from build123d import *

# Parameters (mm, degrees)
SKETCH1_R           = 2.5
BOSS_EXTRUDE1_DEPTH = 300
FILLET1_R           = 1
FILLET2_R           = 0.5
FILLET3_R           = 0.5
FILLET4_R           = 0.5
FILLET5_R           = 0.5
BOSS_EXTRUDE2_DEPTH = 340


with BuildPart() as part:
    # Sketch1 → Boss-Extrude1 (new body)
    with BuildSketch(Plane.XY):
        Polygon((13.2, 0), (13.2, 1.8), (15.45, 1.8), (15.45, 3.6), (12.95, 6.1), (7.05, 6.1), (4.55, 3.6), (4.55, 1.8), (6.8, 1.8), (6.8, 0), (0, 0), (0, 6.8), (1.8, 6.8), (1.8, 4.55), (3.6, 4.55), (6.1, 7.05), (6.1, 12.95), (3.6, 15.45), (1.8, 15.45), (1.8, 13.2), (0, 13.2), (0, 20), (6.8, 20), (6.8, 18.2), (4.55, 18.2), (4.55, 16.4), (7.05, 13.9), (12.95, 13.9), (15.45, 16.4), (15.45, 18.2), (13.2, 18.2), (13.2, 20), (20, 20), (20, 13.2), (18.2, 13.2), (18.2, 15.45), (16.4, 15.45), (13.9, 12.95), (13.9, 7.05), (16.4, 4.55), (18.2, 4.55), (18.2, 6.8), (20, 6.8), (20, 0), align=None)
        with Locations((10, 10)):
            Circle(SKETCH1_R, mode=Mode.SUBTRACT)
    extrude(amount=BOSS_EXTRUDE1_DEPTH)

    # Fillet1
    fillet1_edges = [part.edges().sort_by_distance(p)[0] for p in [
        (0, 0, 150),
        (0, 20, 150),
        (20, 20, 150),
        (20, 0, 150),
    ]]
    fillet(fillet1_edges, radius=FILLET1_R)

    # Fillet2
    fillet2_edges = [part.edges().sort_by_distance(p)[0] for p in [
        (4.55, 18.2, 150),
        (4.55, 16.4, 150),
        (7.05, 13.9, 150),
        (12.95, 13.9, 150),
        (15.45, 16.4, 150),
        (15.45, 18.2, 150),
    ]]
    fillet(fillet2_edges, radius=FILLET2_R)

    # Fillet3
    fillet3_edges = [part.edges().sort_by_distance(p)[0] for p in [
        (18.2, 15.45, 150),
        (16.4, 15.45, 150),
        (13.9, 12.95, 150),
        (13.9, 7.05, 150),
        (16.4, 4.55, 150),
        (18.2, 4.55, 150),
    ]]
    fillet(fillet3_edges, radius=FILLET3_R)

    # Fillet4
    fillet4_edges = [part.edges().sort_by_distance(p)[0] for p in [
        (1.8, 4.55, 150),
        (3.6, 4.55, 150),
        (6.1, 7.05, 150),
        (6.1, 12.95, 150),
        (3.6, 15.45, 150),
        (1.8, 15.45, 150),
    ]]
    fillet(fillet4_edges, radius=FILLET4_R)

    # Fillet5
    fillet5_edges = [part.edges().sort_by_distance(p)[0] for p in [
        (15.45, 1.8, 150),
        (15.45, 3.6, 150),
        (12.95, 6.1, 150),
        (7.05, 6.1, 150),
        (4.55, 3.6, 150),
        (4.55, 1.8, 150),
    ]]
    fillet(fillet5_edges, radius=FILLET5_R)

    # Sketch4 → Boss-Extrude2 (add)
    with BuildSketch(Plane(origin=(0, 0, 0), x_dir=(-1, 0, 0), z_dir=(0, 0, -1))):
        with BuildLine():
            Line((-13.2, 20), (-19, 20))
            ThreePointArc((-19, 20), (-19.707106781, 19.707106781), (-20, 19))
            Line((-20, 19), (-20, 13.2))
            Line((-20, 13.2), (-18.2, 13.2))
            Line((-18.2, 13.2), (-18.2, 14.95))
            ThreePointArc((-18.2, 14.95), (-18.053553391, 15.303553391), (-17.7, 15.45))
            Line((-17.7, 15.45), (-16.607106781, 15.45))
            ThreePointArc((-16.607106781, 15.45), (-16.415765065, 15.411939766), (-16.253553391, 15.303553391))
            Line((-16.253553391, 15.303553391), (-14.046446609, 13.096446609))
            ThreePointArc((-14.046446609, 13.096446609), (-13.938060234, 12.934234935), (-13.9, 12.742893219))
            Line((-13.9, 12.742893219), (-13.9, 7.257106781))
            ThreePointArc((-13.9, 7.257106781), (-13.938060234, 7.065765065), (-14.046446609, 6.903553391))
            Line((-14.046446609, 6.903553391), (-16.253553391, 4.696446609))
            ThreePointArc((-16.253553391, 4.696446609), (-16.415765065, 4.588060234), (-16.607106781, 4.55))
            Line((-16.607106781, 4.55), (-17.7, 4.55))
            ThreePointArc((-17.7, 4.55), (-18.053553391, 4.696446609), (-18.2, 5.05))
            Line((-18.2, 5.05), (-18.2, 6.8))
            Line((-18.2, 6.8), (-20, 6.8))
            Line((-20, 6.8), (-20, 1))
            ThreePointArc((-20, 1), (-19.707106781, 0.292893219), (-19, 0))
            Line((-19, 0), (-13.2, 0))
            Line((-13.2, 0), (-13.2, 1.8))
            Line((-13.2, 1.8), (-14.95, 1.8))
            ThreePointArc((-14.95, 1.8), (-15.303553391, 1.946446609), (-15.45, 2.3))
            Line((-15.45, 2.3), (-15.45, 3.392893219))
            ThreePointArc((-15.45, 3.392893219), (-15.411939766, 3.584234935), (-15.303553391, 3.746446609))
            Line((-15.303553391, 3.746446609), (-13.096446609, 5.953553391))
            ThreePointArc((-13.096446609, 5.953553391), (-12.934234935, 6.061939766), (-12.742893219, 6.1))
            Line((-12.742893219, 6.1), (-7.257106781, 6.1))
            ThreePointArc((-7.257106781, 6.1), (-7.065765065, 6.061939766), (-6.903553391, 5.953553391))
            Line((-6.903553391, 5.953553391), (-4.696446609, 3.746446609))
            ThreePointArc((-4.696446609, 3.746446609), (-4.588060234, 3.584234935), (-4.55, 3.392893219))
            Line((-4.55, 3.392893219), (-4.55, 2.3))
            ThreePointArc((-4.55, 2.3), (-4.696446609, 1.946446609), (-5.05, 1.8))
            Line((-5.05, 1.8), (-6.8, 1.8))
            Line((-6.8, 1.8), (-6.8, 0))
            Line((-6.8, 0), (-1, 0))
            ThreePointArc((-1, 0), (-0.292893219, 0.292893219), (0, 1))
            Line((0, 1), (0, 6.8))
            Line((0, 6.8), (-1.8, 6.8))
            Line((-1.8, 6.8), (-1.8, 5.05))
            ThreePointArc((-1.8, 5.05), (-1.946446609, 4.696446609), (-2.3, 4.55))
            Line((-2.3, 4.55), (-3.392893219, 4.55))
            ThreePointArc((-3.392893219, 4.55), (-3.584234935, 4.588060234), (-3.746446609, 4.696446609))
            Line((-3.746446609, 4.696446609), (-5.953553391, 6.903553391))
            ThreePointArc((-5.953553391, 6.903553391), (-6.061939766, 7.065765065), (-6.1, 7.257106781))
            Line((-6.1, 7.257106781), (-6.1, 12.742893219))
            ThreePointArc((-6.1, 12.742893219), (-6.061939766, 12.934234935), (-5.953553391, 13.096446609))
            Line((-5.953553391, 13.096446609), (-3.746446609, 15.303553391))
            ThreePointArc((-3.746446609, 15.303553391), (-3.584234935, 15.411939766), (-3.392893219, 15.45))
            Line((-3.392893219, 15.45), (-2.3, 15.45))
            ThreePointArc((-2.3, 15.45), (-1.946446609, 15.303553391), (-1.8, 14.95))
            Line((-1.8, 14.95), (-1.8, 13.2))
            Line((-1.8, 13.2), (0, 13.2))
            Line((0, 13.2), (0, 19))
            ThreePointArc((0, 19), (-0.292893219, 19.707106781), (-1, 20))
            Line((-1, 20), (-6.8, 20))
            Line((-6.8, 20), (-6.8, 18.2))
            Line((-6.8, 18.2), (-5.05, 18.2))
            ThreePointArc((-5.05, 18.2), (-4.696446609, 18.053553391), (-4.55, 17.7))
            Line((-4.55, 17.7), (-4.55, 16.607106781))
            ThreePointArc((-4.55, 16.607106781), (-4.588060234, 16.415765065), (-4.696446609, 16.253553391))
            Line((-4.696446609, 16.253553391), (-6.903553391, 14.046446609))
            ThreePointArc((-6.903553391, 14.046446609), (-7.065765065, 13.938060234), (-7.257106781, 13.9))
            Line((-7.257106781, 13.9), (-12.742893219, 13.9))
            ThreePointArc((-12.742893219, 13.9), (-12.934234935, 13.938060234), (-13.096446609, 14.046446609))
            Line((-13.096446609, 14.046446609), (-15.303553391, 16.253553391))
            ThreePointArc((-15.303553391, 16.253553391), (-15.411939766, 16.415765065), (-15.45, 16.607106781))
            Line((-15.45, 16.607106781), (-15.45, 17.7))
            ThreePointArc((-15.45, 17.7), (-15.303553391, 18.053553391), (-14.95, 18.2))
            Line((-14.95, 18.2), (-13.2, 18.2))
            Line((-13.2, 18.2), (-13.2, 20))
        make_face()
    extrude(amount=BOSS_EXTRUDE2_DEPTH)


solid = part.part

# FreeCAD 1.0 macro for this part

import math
import FreeCAD as App
import Part
import Sketcher


def edges_at(feature, points):
    """Names of the edges that pass closest to the given points."""
    edges = feature.Shape.Edges
    near = lambda p: min(range(len(edges)), key=lambda i: edges[i].distToShape(Part.Vertex(*p))[0])
    return sorted({f"Edge{near(p) + 1}" for p in points})

doc = App.newDocument("Part")
body = doc.addObject("PartDesign::Body", "Body")

# Sketch on XY plane
sketch1 = body.newObject("Sketcher::SketchObject", "Sketch")
sketch1.AttachmentSupport = (doc.getObject("XY_Plane"), [""])
sketch1.MapMode = "FlatFace"
sketch1.addGeometry(Part.LineSegment(App.Vector(13.2, 1.8, 0), App.Vector(13.2, 0, 0)), False)
sketch1.addGeometry(Part.LineSegment(App.Vector(13.2, 0, 0), App.Vector(20, 0, 0)), False)
sketch1.addGeometry(Part.LineSegment(App.Vector(20, 0, 0), App.Vector(20, 6.8, 0)), False)
sketch1.addGeometry(Part.LineSegment(App.Vector(20, 6.8, 0), App.Vector(18.2, 6.8, 0)), False)
sketch1.addGeometry(Part.LineSegment(App.Vector(18.2, 6.8, 0), App.Vector(18.2, 4.5, 0)), False)
sketch1.addGeometry(Part.LineSegment(App.Vector(18.2, 4.5, 0), App.Vector(16.4, 4.5, 0)), False)
sketch1.addGeometry(Part.LineSegment(App.Vector(16.4, 4.5, 0), App.Vector(13.9, 7, 0)), False)
sketch1.addGeometry(Part.LineSegment(App.Vector(13.9, 7, 0), App.Vector(13.9, 12.9, 0)), False)
sketch1.addGeometry(Part.LineSegment(App.Vector(13.9, 12.9, 0), App.Vector(16.4, 15.4, 0)), False)
sketch1.addGeometry(Part.LineSegment(App.Vector(16.4, 15.4, 0), App.Vector(18.2, 15.4, 0)), False)
sketch1.addGeometry(Part.LineSegment(App.Vector(18.2, 15.4, 0), App.Vector(18.2, 13.2, 0)), False)
sketch1.addGeometry(Part.LineSegment(App.Vector(18.2, 13.2, 0), App.Vector(20, 13.2, 0)), False)
sketch1.addGeometry(Part.LineSegment(App.Vector(20, 13.2, 0), App.Vector(20, 20, 0)), False)
sketch1.addGeometry(Part.LineSegment(App.Vector(20, 20, 0), App.Vector(13.2, 20, 0)), False)
sketch1.addGeometry(Part.LineSegment(App.Vector(13.2, 20, 0), App.Vector(13.2, 18.2, 0)), False)
sketch1.addGeometry(Part.LineSegment(App.Vector(13.2, 18.2, 0), App.Vector(15.4, 18.2, 0)), False)
sketch1.addGeometry(Part.LineSegment(App.Vector(15.4, 18.2, 0), App.Vector(15.4, 16.4, 0)), False)
sketch1.addGeometry(Part.LineSegment(App.Vector(15.4, 16.4, 0), App.Vector(12.9, 13.9, 0)), False)
sketch1.addGeometry(Part.LineSegment(App.Vector(12.9, 13.9, 0), App.Vector(7, 13.9, 0)), False)
sketch1.addGeometry(Part.LineSegment(App.Vector(7, 13.9, 0), App.Vector(4.5, 16.4, 0)), False)
sketch1.addGeometry(Part.LineSegment(App.Vector(4.5, 16.4, 0), App.Vector(4.5, 18.2, 0)), False)
sketch1.addGeometry(Part.LineSegment(App.Vector(4.5, 18.2, 0), App.Vector(6.8, 18.2, 0)), False)
sketch1.addGeometry(Part.LineSegment(App.Vector(6.8, 18.2, 0), App.Vector(6.8, 20, 0)), False)
sketch1.addGeometry(Part.LineSegment(App.Vector(6.8, 20, 0), App.Vector(0, 20, 0)), False)
sketch1.addGeometry(Part.LineSegment(App.Vector(0, 20, 0), App.Vector(0, 13.2, 0)), False)
sketch1.addGeometry(Part.LineSegment(App.Vector(0, 13.2, 0), App.Vector(1.8, 13.2, 0)), False)
sketch1.addGeometry(Part.LineSegment(App.Vector(1.8, 13.2, 0), App.Vector(1.8, 15.4, 0)), False)
sketch1.addGeometry(Part.LineSegment(App.Vector(1.8, 15.4, 0), App.Vector(3.6, 15.4, 0)), False)
sketch1.addGeometry(Part.LineSegment(App.Vector(3.6, 15.4, 0), App.Vector(6.1, 12.9, 0)), False)
sketch1.addGeometry(Part.LineSegment(App.Vector(6.1, 12.9, 0), App.Vector(6.1, 7, 0)), False)
sketch1.addGeometry(Part.LineSegment(App.Vector(6.1, 7, 0), App.Vector(3.6, 4.5, 0)), False)
sketch1.addGeometry(Part.LineSegment(App.Vector(3.6, 4.5, 0), App.Vector(1.8, 4.5, 0)), False)
sketch1.addGeometry(Part.LineSegment(App.Vector(1.8, 4.5, 0), App.Vector(1.8, 6.8, 0)), False)
sketch1.addGeometry(Part.LineSegment(App.Vector(1.8, 6.8, 0), App.Vector(0, 6.8, 0)), False)
sketch1.addGeometry(Part.LineSegment(App.Vector(0, 6.8, 0), App.Vector(0, 0, 0)), False)
sketch1.addGeometry(Part.LineSegment(App.Vector(0, 0, 0), App.Vector(6.8, 0, 0)), False)
sketch1.addGeometry(Part.LineSegment(App.Vector(6.8, 0, 0), App.Vector(6.8, 1.8, 0)), False)
sketch1.addGeometry(Part.LineSegment(App.Vector(6.8, 1.8, 0), App.Vector(4.5, 1.8, 0)), False)
sketch1.addGeometry(Part.LineSegment(App.Vector(4.5, 1.8, 0), App.Vector(4.5, 3.6, 0)), False)
sketch1.addGeometry(Part.LineSegment(App.Vector(4.5, 3.6, 0), App.Vector(7, 6.1, 0)), False)
sketch1.addGeometry(Part.LineSegment(App.Vector(7, 6.1, 0), App.Vector(12.9, 6.1, 0)), False)
sketch1.addGeometry(Part.LineSegment(App.Vector(12.9, 6.1, 0), App.Vector(15.4, 3.6, 0)), False)
sketch1.addGeometry(Part.LineSegment(App.Vector(15.4, 3.6, 0), App.Vector(15.4, 1.8, 0)), False)
sketch1.addGeometry(Part.LineSegment(App.Vector(15.4, 1.8, 0), App.Vector(13.2, 1.8, 0)), False)
sketch1.addGeometry(Part.Circle(App.Vector(10, 10, 0), App.Vector(0, 0, 1), 2.5), False)
sketch1.addConstraint(Sketcher.Constraint("Coincident", 0, 2, 1, 1))
sketch1.addConstraint(Sketcher.Constraint("Coincident", 1, 2, 2, 1))
sketch1.addConstraint(Sketcher.Constraint("Coincident", 2, 2, 3, 1))
sketch1.addConstraint(Sketcher.Constraint("Coincident", 3, 2, 4, 1))
sketch1.addConstraint(Sketcher.Constraint("Coincident", 4, 2, 5, 1))
sketch1.addConstraint(Sketcher.Constraint("Coincident", 5, 2, 6, 1))
sketch1.addConstraint(Sketcher.Constraint("Coincident", 6, 2, 7, 1))
sketch1.addConstraint(Sketcher.Constraint("Coincident", 7, 2, 8, 1))
sketch1.addConstraint(Sketcher.Constraint("Coincident", 8, 2, 9, 1))
sketch1.addConstraint(Sketcher.Constraint("Coincident", 9, 2, 10, 1))
sketch1.addConstraint(Sketcher.Constraint("Coincident", 10, 2, 11, 1))
sketch1.addConstraint(Sketcher.Constraint("Coincident", 11, 2, 12, 1))
sketch1.addConstraint(Sketcher.Constraint("Coincident", 12, 2, 13, 1))
sketch1.addConstraint(Sketcher.Constraint("Coincident", 13, 2, 14, 1))
sketch1.addConstraint(Sketcher.Constraint("Coincident", 14, 2, 15, 1))
sketch1.addConstraint(Sketcher.Constraint("Coincident", 15, 2, 16, 1))
sketch1.addConstraint(Sketcher.Constraint("Coincident", 16, 2, 17, 1))
sketch1.addConstraint(Sketcher.Constraint("Coincident", 17, 2, 18, 1))
sketch1.addConstraint(Sketcher.Constraint("Coincident", 18, 2, 19, 1))
sketch1.addConstraint(Sketcher.Constraint("Coincident", 19, 2, 20, 1))
sketch1.addConstraint(Sketcher.Constraint("Coincident", 20, 2, 21, 1))
sketch1.addConstraint(Sketcher.Constraint("Coincident", 21, 2, 22, 1))
sketch1.addConstraint(Sketcher.Constraint("Coincident", 22, 2, 23, 1))
sketch1.addConstraint(Sketcher.Constraint("Coincident", 23, 2, 24, 1))
sketch1.addConstraint(Sketcher.Constraint("Coincident", 24, 2, 25, 1))
sketch1.addConstraint(Sketcher.Constraint("Coincident", 25, 2, 26, 1))
sketch1.addConstraint(Sketcher.Constraint("Coincident", 26, 2, 27, 1))
sketch1.addConstraint(Sketcher.Constraint("Coincident", 27, 2, 28, 1))
sketch1.addConstraint(Sketcher.Constraint("Coincident", 28, 2, 29, 1))
sketch1.addConstraint(Sketcher.Constraint("Coincident", 29, 2, 30, 1))
sketch1.addConstraint(Sketcher.Constraint("Coincident", 30, 2, 31, 1))
sketch1.addConstraint(Sketcher.Constraint("Coincident", 31, 2, 32, 1))
sketch1.addConstraint(Sketcher.Constraint("Coincident", 32, 2, 33, 1))
sketch1.addConstraint(Sketcher.Constraint("Coincident", 33, 2, 34, 1))
sketch1.addConstraint(Sketcher.Constraint("Coincident", 34, 2, 35, 1))
sketch1.addConstraint(Sketcher.Constraint("Coincident", 35, 2, 36, 1))
sketch1.addConstraint(Sketcher.Constraint("Coincident", 36, 2, 37, 1))
sketch1.addConstraint(Sketcher.Constraint("Coincident", 37, 2, 38, 1))
sketch1.addConstraint(Sketcher.Constraint("Coincident", 38, 2, 39, 1))
sketch1.addConstraint(Sketcher.Constraint("Coincident", 39, 2, 40, 1))
sketch1.addConstraint(Sketcher.Constraint("Coincident", 40, 2, 41, 1))
sketch1.addConstraint(Sketcher.Constraint("Coincident", 41, 2, 42, 1))
sketch1.addConstraint(Sketcher.Constraint("Coincident", 42, 2, 43, 1))
sketch1.addConstraint(Sketcher.Constraint("Coincident", 43, 2, 0, 1))
sketch1.addConstraint(Sketcher.Constraint("Vertical", 0))
sketch1.addConstraint(Sketcher.Constraint("Horizontal", 1))
sketch1.addConstraint(Sketcher.Constraint("Vertical", 2))
sketch1.addConstraint(Sketcher.Constraint("Horizontal", 3))
sketch1.addConstraint(Sketcher.Constraint("Vertical", 4))
sketch1.addConstraint(Sketcher.Constraint("Horizontal", 5))
sketch1.addConstraint(Sketcher.Constraint("Vertical", 7))
sketch1.addConstraint(Sketcher.Constraint("Horizontal", 9))
sketch1.addConstraint(Sketcher.Constraint("Vertical", 10))
sketch1.addConstraint(Sketcher.Constraint("Horizontal", 11))
sketch1.addConstraint(Sketcher.Constraint("Vertical", 12))
sketch1.addConstraint(Sketcher.Constraint("Horizontal", 13))
sketch1.addConstraint(Sketcher.Constraint("Vertical", 14))
sketch1.addConstraint(Sketcher.Constraint("Horizontal", 15))
sketch1.addConstraint(Sketcher.Constraint("Vertical", 16))
sketch1.addConstraint(Sketcher.Constraint("Horizontal", 18))
sketch1.addConstraint(Sketcher.Constraint("Vertical", 20))
sketch1.addConstraint(Sketcher.Constraint("Horizontal", 21))
sketch1.addConstraint(Sketcher.Constraint("Vertical", 22))
sketch1.addConstraint(Sketcher.Constraint("Horizontal", 23))
sketch1.addConstraint(Sketcher.Constraint("Vertical", 24))
sketch1.addConstraint(Sketcher.Constraint("Horizontal", 25))
sketch1.addConstraint(Sketcher.Constraint("Vertical", 26))
sketch1.addConstraint(Sketcher.Constraint("Horizontal", 27))
sketch1.addConstraint(Sketcher.Constraint("Vertical", 29))
sketch1.addConstraint(Sketcher.Constraint("Horizontal", 31))
sketch1.addConstraint(Sketcher.Constraint("Vertical", 32))
sketch1.addConstraint(Sketcher.Constraint("Horizontal", 33))
sketch1.addConstraint(Sketcher.Constraint("Vertical", 34))
sketch1.addConstraint(Sketcher.Constraint("Horizontal", 35))
sketch1.addConstraint(Sketcher.Constraint("Vertical", 36))
sketch1.addConstraint(Sketcher.Constraint("Horizontal", 37))
sketch1.addConstraint(Sketcher.Constraint("Vertical", 38))
sketch1.addConstraint(Sketcher.Constraint("Horizontal", 40))
sketch1.addConstraint(Sketcher.Constraint("Vertical", 42))
sketch1.addConstraint(Sketcher.Constraint("Horizontal", 43))
sketch1.addConstraint(Sketcher.Constraint("Coincident", 34, 2, -1, 1))
sketch1.addConstraint(Sketcher.Constraint("PointOnObject", 0, 2, -1))
sketch1.addConstraint(Sketcher.Constraint("PointOnObject", 23, 2, -2))
sketch1.addConstraint(Sketcher.Constraint("Perpendicular", 6, 8))
sketch1.addConstraint(Sketcher.Constraint("Parallel", 8, 17))
sketch1.addConstraint(Sketcher.Constraint("Perpendicular", 17, 19))
sketch1.addConstraint(Sketcher.Constraint("Parallel", 19, 28))
sketch1.addConstraint(Sketcher.Constraint("Perpendicular", 28, 30))
sketch1.addConstraint(Sketcher.Constraint("Parallel", 30, 39))
sketch1.addConstraint(Sketcher.Constraint("Perpendicular", 39, 41))
sketch1.addConstraint(Sketcher.Constraint("Horizontal", 16, 2, 19, 2))
sketch1.addConstraint(Sketcher.Constraint("Horizontal", 15, 2, 20, 2))
sketch1.addConstraint(Sketcher.Constraint("Horizontal", 13, 2, 22, 2))
sketch1.addConstraint(Sketcher.Constraint("Horizontal", 11, 2, 24, 2))
sketch1.addConstraint(Sketcher.Constraint("Horizontal", 9, 2, 26, 2))
sketch1.addConstraint(Sketcher.Constraint("Horizontal", 7, 2, 28, 2))
sketch1.addConstraint(Sketcher.Constraint("Horizontal", 6, 2, 29, 2))
sketch1.addConstraint(Sketcher.Constraint("Horizontal", 5, 2, 30, 2))
sketch1.addConstraint(Sketcher.Constraint("Horizontal", 3, 2, 32, 2))
sketch1.addConstraint(Sketcher.Constraint("Horizontal", 38, 2, 41, 2))
sketch1.addConstraint(Sketcher.Constraint("Horizontal", 37, 2, 42, 2))
sketch1.addConstraint(Sketcher.Constraint("Vertical", 5, 2, 8, 2))
sketch1.addConstraint(Sketcher.Constraint("Vertical", 4, 2, 9, 2))
sketch1.addConstraint(Sketcher.Constraint("Vertical", 2, 2, 11, 2))
sketch1.addConstraint(Sketcher.Constraint("Vertical", 0, 2, 13, 2))
sketch1.addConstraint(Sketcher.Constraint("Vertical", 27, 2, 30, 2))
sketch1.addConstraint(Sketcher.Constraint("Vertical", 26, 2, 31, 2))
sketch1.addConstraint(Sketcher.Constraint("Vertical", 22, 2, 35, 2))
sketch1.addConstraint(Sketcher.Constraint("Vertical", 20, 2, 37, 2))
sketch1.addConstraint(Sketcher.Constraint("Vertical", 18, 2, 39, 2))
sketch1.addConstraint(Sketcher.Constraint("Vertical", 17, 2, 40, 2))
sketch1.addConstraint(Sketcher.Constraint("Equal", 3, 5))
sketch1.addConstraint(Sketcher.Constraint("Equal", 15, 21))
sketch1.addConstraint(Sketcher.Constraint("Equal", 13, 23))
sketch1.addConstraint(Sketcher.Constraint("Equal", 11, 25))
sketch1.addConstraint(Sketcher.Constraint("Equal", 25, 27))
sketch1.addConstraint(Sketcher.Constraint("Equal", 33, 0))
sketch1.addConstraint(Sketcher.Constraint("Equal", 35, 2))
sketch1.addConstraint(Sketcher.Constraint("Equal", 43, 4))
sketch1.addConstraint(Sketcher.Constraint("Equal", 40, 7))
sketch1.addConstraint(Sketcher.Constraint("Equal", 4, 10))
sketch1.addConstraint(Sketcher.Constraint("Equal", 2, 12))
sketch1.addConstraint(Sketcher.Constraint("Equal", 0, 14))
sketch1.addConstraint(Sketcher.Constraint("Equal", 14, 16))
sketch1.addConstraint(Sketcher.Constraint("Equal", 36, 38))
sketch1.addConstraint(Sketcher.Constraint("Equal", 8, 17))
sketch1.addConstraint(Sketcher.Constraint("Diameter", 44, 5.0))
sketch1.addConstraint(Sketcher.Constraint("DistanceX", 1, 1, 1, 2, 6.8))
sketch1.addConstraint(Sketcher.Constraint("DistanceX", 3, 2, 3, 1, 1.8))
sketch1.addConstraint(Sketcher.Constraint("DistanceX", 18, 2, 18, 1, 5.9))
sketch1.addConstraint(Sketcher.Constraint("DistanceX", -1, 1, 44, 3, 10.0))
sketch1.addConstraint(Sketcher.Constraint("DistanceY", -1, 1, 44, 3, 10.0))
sketch1.addConstraint(Sketcher.Constraint("DistanceX", -1, 1, 1, 2, 20.0))
sketch1.addConstraint(Sketcher.Constraint("DistanceX", 15, 1, 15, 2, 2.25))
pad1 = body.newObject("PartDesign::Pad", "Pad")
pad1.Profile = sketch1
pad1.Length = 300
doc.recompute()

fillet = body.newObject("PartDesign::Fillet", "Fillet")
fillet.Base = (pad1, edges_at(pad1, [
    (0, 0, 150),
    (0, 20, 150),
    (20, 20, 150),
    (20, 0, 150),
]))
fillet.Radius = 1
doc.recompute()

fillet2 = body.newObject("PartDesign::Fillet", "Fillet001")
fillet2.Base = (fillet, edges_at(fillet, [
    (4.55, 18.2, 150),
    (4.55, 16.4, 150),
    (7.05, 13.9, 150),
    (12.95, 13.9, 150),
    (15.45, 16.4, 150),
    (15.45, 18.2, 150),
]))
fillet2.Radius = 0.5
doc.recompute()

fillet3 = body.newObject("PartDesign::Fillet", "Fillet002")
fillet3.Base = (fillet2, edges_at(fillet2, [
    (18.2, 15.45, 150),
    (16.4, 15.45, 150),
    (13.9, 12.95, 150),
    (13.9, 7.05, 150),
    (16.4, 4.55, 150),
    (18.2, 4.55, 150),
]))
fillet3.Radius = 0.5
doc.recompute()

fillet4 = body.newObject("PartDesign::Fillet", "Fillet003")
fillet4.Base = (fillet3, edges_at(fillet3, [
    (1.8, 4.55, 150),
    (3.6, 4.55, 150),
    (6.1, 7.05, 150),
    (6.1, 12.95, 150),
    (3.6, 15.45, 150),
    (1.8, 15.45, 150),
]))
fillet4.Radius = 0.5
doc.recompute()

fillet5 = body.newObject("PartDesign::Fillet", "Fillet004")
fillet5.Base = (fillet4, edges_at(fillet4, [
    (15.45, 1.8, 150),
    (15.45, 3.6, 150),
    (12.95, 6.1, 150),
    (7.05, 6.1, 150),
    (4.55, 3.6, 150),
    (4.55, 1.8, 150),
]))
fillet5.Radius = 0.5

# Sketch on XY plane
sketch2 = body.newObject("Sketcher::SketchObject", "Sketch001")
sketch2.AttachmentSupport = (doc.getObject("XY_Plane"), [""])
sketch2.MapMode = "FlatFace"
sketch2.addGeometry(Part.LineSegment(App.Vector(13.2, 20, 0), App.Vector(19, 20, 0)), False)
sketch2.addGeometry(Part.ArcOfCircle(Part.Circle(App.Vector(19, 19, 0), App.Vector(0, 0, 1), 1), math.radians(0), math.radians(90)), False)
sketch2.addGeometry(Part.LineSegment(App.Vector(20, 19, 0), App.Vector(20, 13.2, 0)), False)
sketch2.addGeometry(Part.LineSegment(App.Vector(20, 13.2, 0), App.Vector(18.2, 13.2, 0)), False)
sketch2.addGeometry(Part.LineSegment(App.Vector(18.2, 13.2, 0), App.Vector(18.2, 14.95, 0)), False)
sketch2.addGeometry(Part.ArcOfCircle(Part.Circle(App.Vector(17.7, 14.95, 0), App.Vector(0, 0, 1), 0.5), math.radians(0), math.radians(90)), False)
sketch2.addGeometry(Part.LineSegment(App.Vector(17.7, 15.45, 0), App.Vector(16.61, 15.45, 0)), False)
sketch2.addGeometry(Part.ArcOfCircle(Part.Circle(App.Vector(16.61, 14.95, 0), App.Vector(0, 0, 1), 0.5), math.radians(90), math.radians(135)), False)
sketch2.addGeometry(Part.LineSegment(App.Vector(16.25, 15.3, 0), App.Vector(14.05, 13.1, 0)), False)
sketch2.addGeometry(Part.ArcOfCircle(Part.Circle(App.Vector(14.4, 12.74, 0), App.Vector(0, 0, 1), 0.5), math.radians(135), math.radians(180)), False)
sketch2.addGeometry(Part.LineSegment(App.Vector(13.9, 12.74, 0), App.Vector(13.9, 7.26, 0)), False)
sketch2.addGeometry(Part.ArcOfCircle(Part.Circle(App.Vector(14.4, 7.26, 0), App.Vector(0, 0, 1), 0.5), math.radians(-180), math.radians(-135)), False)
sketch2.addGeometry(Part.LineSegment(App.Vector(14.05, 6.9, 0), App.Vector(16.25, 4.7, 0)), False)
sketch2.addGeometry(Part.ArcOfCircle(Part.Circle(App.Vector(16.61, 5.05, 0), App.Vector(0, 0, 1), 0.5), math.radians(-135), math.radians(-90)), False)
sketch2.addGeometry(Part.LineSegment(App.Vector(16.61, 4.55, 0), App.Vector(17.7, 4.55, 0)), False)
sketch2.addGeometry(Part.ArcOfCircle(Part.Circle(App.Vector(17.7, 5.05, 0), App.Vector(0, 0, 1), 0.5), math.radians(-90), math.radians(0)), False)
sketch2.addGeometry(Part.LineSegment(App.Vector(18.2, 5.05, 0), App.Vector(18.2, 6.8, 0)), False)
sketch2.addGeometry(Part.LineSegment(App.Vector(18.2, 6.8, 0), App.Vector(20, 6.8, 0)), False)
sketch2.addGeometry(Part.LineSegment(App.Vector(20, 6.8, 0), App.Vector(20, 1, 0)), False)
sketch2.addGeometry(Part.ArcOfCircle(Part.Circle(App.Vector(19, 1, 0), App.Vector(0, 0, 1), 1), math.radians(-90), math.radians(0)), False)
sketch2.addGeometry(Part.LineSegment(App.Vector(19, 0, 0), App.Vector(13.2, 0, 0)), False)
sketch2.addGeometry(Part.LineSegment(App.Vector(13.2, 0, 0), App.Vector(13.2, 1.8, 0)), False)
sketch2.addGeometry(Part.LineSegment(App.Vector(13.2, 1.8, 0), App.Vector(14.95, 1.8, 0)), False)
sketch2.addGeometry(Part.ArcOfCircle(Part.Circle(App.Vector(14.95, 2.3, 0), App.Vector(0, 0, 1), 0.5), math.radians(-90), math.radians(0)), False)
sketch2.addGeometry(Part.LineSegment(App.Vector(15.45, 2.3, 0), App.Vector(15.45, 3.39, 0)), False)
sketch2.addGeometry(Part.ArcOfCircle(Part.Circle(App.Vector(14.95, 3.39, 0), App.Vector(0, 0, 1), 0.5), math.radians(0), math.radians(45)), False)
sketch2.addGeometry(Part.LineSegment(App.Vector(15.3, 3.75, 0), App.Vector(13.1, 5.95, 0)), False)
sketch2.addGeometry(Part.ArcOfCircle(Part.Circle(App.Vector(12.74, 5.6, 0), App.Vector(0, 0, 1), 0.5), math.radians(45), math.radians(90)), False)
sketch2.addGeometry(Part.LineSegment(App.Vector(12.74, 6.1, 0), App.Vector(7.26, 6.1, 0)), False)
sketch2.addGeometry(Part.ArcOfCircle(Part.Circle(App.Vector(7.26, 5.6, 0), App.Vector(0, 0, 1), 0.5), math.radians(90), math.radians(135)), False)
sketch2.addGeometry(Part.LineSegment(App.Vector(6.9, 5.95, 0), App.Vector(4.7, 3.75, 0)), False)
sketch2.addGeometry(Part.ArcOfCircle(Part.Circle(App.Vector(5.05, 3.39, 0), App.Vector(0, 0, 1), 0.5), math.radians(135), math.radians(180)), False)
sketch2.addGeometry(Part.LineSegment(App.Vector(4.55, 3.39, 0), App.Vector(4.55, 2.3, 0)), False)
sketch2.addGeometry(Part.ArcOfCircle(Part.Circle(App.Vector(5.05, 2.3, 0), App.Vector(0, 0, 1), 0.5), math.radians(180), math.radians(270)), False)
sketch2.addGeometry(Part.LineSegment(App.Vector(5.05, 1.8, 0), App.Vector(6.8, 1.8, 0)), False)
sketch2.addGeometry(Part.LineSegment(App.Vector(6.8, 1.8, 0), App.Vector(6.8, 0, 0)), False)
sketch2.addGeometry(Part.LineSegment(App.Vector(6.8, 0, 0), App.Vector(1, 0, 0)), False)
sketch2.addGeometry(Part.ArcOfCircle(Part.Circle(App.Vector(1, 1, 0), App.Vector(0, 0, 1), 1), math.radians(-180), math.radians(-90)), False)
sketch2.addGeometry(Part.LineSegment(App.Vector(0, 1, 0), App.Vector(0, 6.8, 0)), False)
sketch2.addGeometry(Part.LineSegment(App.Vector(0, 6.8, 0), App.Vector(1.8, 6.8, 0)), False)
sketch2.addGeometry(Part.LineSegment(App.Vector(1.8, 6.8, 0), App.Vector(1.8, 5.05, 0)), False)
sketch2.addGeometry(Part.ArcOfCircle(Part.Circle(App.Vector(2.3, 5.05, 0), App.Vector(0, 0, 1), 0.5), math.radians(180), math.radians(270)), False)
sketch2.addGeometry(Part.LineSegment(App.Vector(2.3, 4.55, 0), App.Vector(3.39, 4.55, 0)), False)
sketch2.addGeometry(Part.ArcOfCircle(Part.Circle(App.Vector(3.39, 5.05, 0), App.Vector(0, 0, 1), 0.5), math.radians(-90), math.radians(-45)), False)
sketch2.addGeometry(Part.LineSegment(App.Vector(3.75, 4.7, 0), App.Vector(5.95, 6.9, 0)), False)
sketch2.addGeometry(Part.ArcOfCircle(Part.Circle(App.Vector(5.6, 7.26, 0), App.Vector(0, 0, 1), 0.5), math.radians(-45), math.radians(0)), False)
sketch2.addGeometry(Part.LineSegment(App.Vector(6.1, 7.26, 0), App.Vector(6.1, 12.74, 0)), False)
sketch2.addGeometry(Part.ArcOfCircle(Part.Circle(App.Vector(5.6, 12.74, 0), App.Vector(0, 0, 1), 0.5), math.radians(0), math.radians(45)), False)
sketch2.addGeometry(Part.LineSegment(App.Vector(5.95, 13.1, 0), App.Vector(3.75, 15.3, 0)), False)
sketch2.addGeometry(Part.ArcOfCircle(Part.Circle(App.Vector(3.39, 14.95, 0), App.Vector(0, 0, 1), 0.5), math.radians(45), math.radians(90)), False)
sketch2.addGeometry(Part.LineSegment(App.Vector(3.39, 15.45, 0), App.Vector(2.3, 15.45, 0)), False)
sketch2.addGeometry(Part.ArcOfCircle(Part.Circle(App.Vector(2.3, 14.95, 0), App.Vector(0, 0, 1), 0.5), math.radians(90), math.radians(180)), False)
sketch2.addGeometry(Part.LineSegment(App.Vector(1.8, 14.95, 0), App.Vector(1.8, 13.2, 0)), False)
sketch2.addGeometry(Part.LineSegment(App.Vector(1.8, 13.2, 0), App.Vector(0, 13.2, 0)), False)
sketch2.addGeometry(Part.LineSegment(App.Vector(0, 13.2, 0), App.Vector(0, 19, 0)), False)
sketch2.addGeometry(Part.ArcOfCircle(Part.Circle(App.Vector(1, 19, 0), App.Vector(0, 0, 1), 1), math.radians(90), math.radians(180)), False)
sketch2.addGeometry(Part.LineSegment(App.Vector(1, 20, 0), App.Vector(6.8, 20, 0)), False)
sketch2.addGeometry(Part.LineSegment(App.Vector(6.8, 20, 0), App.Vector(6.8, 18.2, 0)), False)
sketch2.addGeometry(Part.LineSegment(App.Vector(6.8, 18.2, 0), App.Vector(5.05, 18.2, 0)), False)
sketch2.addGeometry(Part.ArcOfCircle(Part.Circle(App.Vector(5.05, 17.7, 0), App.Vector(0, 0, 1), 0.5), math.radians(90), math.radians(180)), False)
sketch2.addGeometry(Part.LineSegment(App.Vector(4.55, 17.7, 0), App.Vector(4.55, 16.61, 0)), False)
sketch2.addGeometry(Part.ArcOfCircle(Part.Circle(App.Vector(5.05, 16.61, 0), App.Vector(0, 0, 1), 0.5), math.radians(-180), math.radians(-135)), False)
sketch2.addGeometry(Part.LineSegment(App.Vector(4.7, 16.25, 0), App.Vector(6.9, 14.05, 0)), False)
sketch2.addGeometry(Part.ArcOfCircle(Part.Circle(App.Vector(7.26, 14.4, 0), App.Vector(0, 0, 1), 0.5), math.radians(-135), math.radians(-90)), False)
sketch2.addGeometry(Part.LineSegment(App.Vector(7.26, 13.9, 0), App.Vector(12.74, 13.9, 0)), False)
sketch2.addGeometry(Part.ArcOfCircle(Part.Circle(App.Vector(12.74, 14.4, 0), App.Vector(0, 0, 1), 0.5), math.radians(-90), math.radians(-45)), False)
sketch2.addGeometry(Part.LineSegment(App.Vector(13.1, 14.05, 0), App.Vector(15.3, 16.25, 0)), False)
sketch2.addGeometry(Part.ArcOfCircle(Part.Circle(App.Vector(14.95, 16.61, 0), App.Vector(0, 0, 1), 0.5), math.radians(-45), math.radians(0)), False)
sketch2.addGeometry(Part.LineSegment(App.Vector(15.45, 16.61, 0), App.Vector(15.45, 17.7, 0)), False)
sketch2.addGeometry(Part.ArcOfCircle(Part.Circle(App.Vector(14.95, 17.7, 0), App.Vector(0, 0, 1), 0.5), math.radians(0), math.radians(90)), False)
sketch2.addGeometry(Part.LineSegment(App.Vector(14.95, 18.2, 0), App.Vector(13.2, 18.2, 0)), False)
sketch2.addGeometry(Part.LineSegment(App.Vector(13.2, 18.2, 0), App.Vector(13.2, 20, 0)), False)
sketch2.addConstraint(Sketcher.Constraint("Tangent", 0, 2, 1, 2))
sketch2.addConstraint(Sketcher.Constraint("Tangent", 1, 1, 2, 1))
sketch2.addConstraint(Sketcher.Constraint("Coincident", 2, 2, 3, 1))
sketch2.addConstraint(Sketcher.Constraint("Coincident", 3, 2, 4, 1))
sketch2.addConstraint(Sketcher.Constraint("Tangent", 4, 2, 5, 1))
sketch2.addConstraint(Sketcher.Constraint("Tangent", 5, 2, 6, 1))
sketch2.addConstraint(Sketcher.Constraint("Tangent", 6, 2, 7, 1))
sketch2.addConstraint(Sketcher.Constraint("Tangent", 7, 2, 8, 1))
sketch2.addConstraint(Sketcher.Constraint("Tangent", 8, 2, 9, 1))
sketch2.addConstraint(Sketcher.Constraint("Tangent", 9, 2, 10, 1))
sketch2.addConstraint(Sketcher.Constraint("Tangent", 10, 2, 11, 1))
sketch2.addConstraint(Sketcher.Constraint("Tangent", 11, 2, 12, 1))
sketch2.addConstraint(Sketcher.Constraint("Tangent", 12, 2, 13, 1))
sketch2.addConstraint(Sketcher.Constraint("Tangent", 13, 2, 14, 1))
sketch2.addConstraint(Sketcher.Constraint("Tangent", 14, 2, 15, 1))
sketch2.addConstraint(Sketcher.Constraint("Tangent", 15, 2, 16, 1))
sketch2.addConstraint(Sketcher.Constraint("Coincident", 16, 2, 17, 1))
sketch2.addConstraint(Sketcher.Constraint("Coincident", 17, 2, 18, 1))
sketch2.addConstraint(Sketcher.Constraint("Tangent", 18, 2, 19, 2))
sketch2.addConstraint(Sketcher.Constraint("Tangent", 19, 1, 20, 1))
sketch2.addConstraint(Sketcher.Constraint("Coincident", 20, 2, 21, 1))
sketch2.addConstraint(Sketcher.Constraint("Coincident", 21, 2, 22, 1))
sketch2.addConstraint(Sketcher.Constraint("Tangent", 22, 2, 23, 1))
sketch2.addConstraint(Sketcher.Constraint("Tangent", 23, 2, 24, 1))
sketch2.addConstraint(Sketcher.Constraint("Tangent", 24, 2, 25, 1))
sketch2.addConstraint(Sketcher.Constraint("Tangent", 25, 2, 26, 1))
sketch2.addConstraint(Sketcher.Constraint("Tangent", 26, 2, 27, 1))
sketch2.addConstraint(Sketcher.Constraint("Tangent", 27, 2, 28, 1))
sketch2.addConstraint(Sketcher.Constraint("Tangent", 28, 2, 29, 1))
sketch2.addConstraint(Sketcher.Constraint("Tangent", 29, 2, 30, 1))
sketch2.addConstraint(Sketcher.Constraint("Tangent", 30, 2, 31, 1))
sketch2.addConstraint(Sketcher.Constraint("Tangent", 31, 2, 32, 1))
sketch2.addConstraint(Sketcher.Constraint("Tangent", 32, 2, 33, 1))
sketch2.addConstraint(Sketcher.Constraint("Tangent", 33, 2, 34, 1))
sketch2.addConstraint(Sketcher.Constraint("Coincident", 34, 2, 35, 1))
sketch2.addConstraint(Sketcher.Constraint("Coincident", 35, 2, 36, 1))
sketch2.addConstraint(Sketcher.Constraint("Tangent", 36, 2, 37, 2))
sketch2.addConstraint(Sketcher.Constraint("Tangent", 37, 1, 38, 1))
sketch2.addConstraint(Sketcher.Constraint("Coincident", 38, 2, 39, 1))
sketch2.addConstraint(Sketcher.Constraint("Coincident", 39, 2, 40, 1))
sketch2.addConstraint(Sketcher.Constraint("Tangent", 40, 2, 41, 1))
sketch2.addConstraint(Sketcher.Constraint("Tangent", 41, 2, 42, 1))
sketch2.addConstraint(Sketcher.Constraint("Tangent", 42, 2, 43, 1))
sketch2.addConstraint(Sketcher.Constraint("Tangent", 43, 2, 44, 1))
sketch2.addConstraint(Sketcher.Constraint("Tangent", 44, 2, 45, 1))
sketch2.addConstraint(Sketcher.Constraint("Tangent", 45, 2, 46, 1))
sketch2.addConstraint(Sketcher.Constraint("Tangent", 46, 2, 47, 1))
sketch2.addConstraint(Sketcher.Constraint("Tangent", 47, 2, 48, 1))
sketch2.addConstraint(Sketcher.Constraint("Tangent", 48, 2, 49, 1))
sketch2.addConstraint(Sketcher.Constraint("Tangent", 49, 2, 50, 1))
sketch2.addConstraint(Sketcher.Constraint("Tangent", 50, 2, 51, 1))
sketch2.addConstraint(Sketcher.Constraint("Tangent", 51, 2, 52, 1))
sketch2.addConstraint(Sketcher.Constraint("Coincident", 52, 2, 53, 1))
sketch2.addConstraint(Sketcher.Constraint("Coincident", 53, 2, 54, 1))
sketch2.addConstraint(Sketcher.Constraint("Tangent", 54, 2, 55, 2))
sketch2.addConstraint(Sketcher.Constraint("Tangent", 55, 1, 56, 1))
sketch2.addConstraint(Sketcher.Constraint("Coincident", 56, 2, 57, 1))
sketch2.addConstraint(Sketcher.Constraint("Coincident", 57, 2, 58, 1))
sketch2.addConstraint(Sketcher.Constraint("Tangent", 58, 2, 59, 1))
sketch2.addConstraint(Sketcher.Constraint("Tangent", 59, 2, 60, 1))
sketch2.addConstraint(Sketcher.Constraint("Tangent", 60, 2, 61, 1))
sketch2.addConstraint(Sketcher.Constraint("Tangent", 61, 2, 62, 1))
sketch2.addConstraint(Sketcher.Constraint("Tangent", 62, 2, 63, 1))
sketch2.addConstraint(Sketcher.Constraint("Tangent", 63, 2, 64, 1))
sketch2.addConstraint(Sketcher.Constraint("Tangent", 64, 2, 65, 1))
sketch2.addConstraint(Sketcher.Constraint("Tangent", 65, 2, 66, 1))
sketch2.addConstraint(Sketcher.Constraint("Tangent", 66, 2, 67, 1))
sketch2.addConstraint(Sketcher.Constraint("Tangent", 67, 2, 68, 1))
sketch2.addConstraint(Sketcher.Constraint("Tangent", 68, 2, 69, 1))
sketch2.addConstraint(Sketcher.Constraint("Tangent", 69, 2, 70, 1))
sketch2.addConstraint(Sketcher.Constraint("Coincident", 70, 2, 71, 1))
sketch2.addConstraint(Sketcher.Constraint("Coincident", 71, 2, 0, 1))
sketch2.addConstraint(Sketcher.Constraint("Horizontal", 0))
sketch2.addConstraint(Sketcher.Constraint("Vertical", 2))
sketch2.addConstraint(Sketcher.Constraint("Horizontal", 3))
sketch2.addConstraint(Sketcher.Constraint("Vertical", 4))
sketch2.addConstraint(Sketcher.Constraint("Horizontal", 6))
sketch2.addConstraint(Sketcher.Constraint("Vertical", 10))
sketch2.addConstraint(Sketcher.Constraint("Horizontal", 14))
sketch2.addConstraint(Sketcher.Constraint("Vertical", 16))
sketch2.addConstraint(Sketcher.Constraint("Horizontal", 17))
sketch2.addConstraint(Sketcher.Constraint("Vertical", 18))
sketch2.addConstraint(Sketcher.Constraint("Horizontal", 20))
sketch2.addConstraint(Sketcher.Constraint("Vertical", 21))
sketch2.addConstraint(Sketcher.Constraint("Horizontal", 22))
sketch2.addConstraint(Sketcher.Constraint("Vertical", 24))
sketch2.addConstraint(Sketcher.Constraint("Horizontal", 28))
sketch2.addConstraint(Sketcher.Constraint("Vertical", 32))
sketch2.addConstraint(Sketcher.Constraint("Horizontal", 34))
sketch2.addConstraint(Sketcher.Constraint("Vertical", 35))
sketch2.addConstraint(Sketcher.Constraint("Horizontal", 36))
sketch2.addConstraint(Sketcher.Constraint("Vertical", 38))
sketch2.addConstraint(Sketcher.Constraint("Horizontal", 39))
sketch2.addConstraint(Sketcher.Constraint("Vertical", 40))
sketch2.addConstraint(Sketcher.Constraint("Horizontal", 42))
sketch2.addConstraint(Sketcher.Constraint("Vertical", 46))
sketch2.addConstraint(Sketcher.Constraint("Horizontal", 50))
sketch2.addConstraint(Sketcher.Constraint("Vertical", 52))
sketch2.addConstraint(Sketcher.Constraint("Horizontal", 53))
sketch2.addConstraint(Sketcher.Constraint("Vertical", 54))
sketch2.addConstraint(Sketcher.Constraint("Horizontal", 56))
sketch2.addConstraint(Sketcher.Constraint("Vertical", 57))
sketch2.addConstraint(Sketcher.Constraint("Horizontal", 58))
sketch2.addConstraint(Sketcher.Constraint("Vertical", 60))
sketch2.addConstraint(Sketcher.Constraint("Horizontal", 64))
sketch2.addConstraint(Sketcher.Constraint("Vertical", 68))
sketch2.addConstraint(Sketcher.Constraint("Horizontal", 70))
sketch2.addConstraint(Sketcher.Constraint("Vertical", 71))
sketch2.addConstraint(Sketcher.Constraint("Equal", 5, 7))
sketch2.addConstraint(Sketcher.Constraint("Equal", 7, 9))
sketch2.addConstraint(Sketcher.Constraint("Equal", 9, 11))
sketch2.addConstraint(Sketcher.Constraint("Equal", 11, 13))
sketch2.addConstraint(Sketcher.Constraint("Equal", 13, 15))
sketch2.addConstraint(Sketcher.Constraint("Equal", 1, 19))
sketch2.addConstraint(Sketcher.Constraint("Equal", 15, 23))
sketch2.addConstraint(Sketcher.Constraint("Equal", 23, 25))
sketch2.addConstraint(Sketcher.Constraint("Equal", 25, 27))
sketch2.addConstraint(Sketcher.Constraint("Equal", 27, 29))
sketch2.addConstraint(Sketcher.Constraint("Equal", 29, 31))
sketch2.addConstraint(Sketcher.Constraint("Equal", 31, 33))
sketch2.addConstraint(Sketcher.Constraint("Equal", 19, 37))
sketch2.addConstraint(Sketcher.Constraint("Equal", 33, 41))
sketch2.addConstraint(Sketcher.Constraint("Equal", 41, 43))
sketch2.addConstraint(Sketcher.Constraint("Equal", 43, 45))
sketch2.addConstraint(Sketcher.Constraint("Equal", 45, 47))
sketch2.addConstraint(Sketcher.Constraint("Equal", 47, 49))
sketch2.addConstraint(Sketcher.Constraint("Equal", 49, 51))
sketch2.addConstraint(Sketcher.Constraint("Equal", 37, 55))
sketch2.addConstraint(Sketcher.Constraint("Equal", 51, 59))
sketch2.addConstraint(Sketcher.Constraint("Equal", 59, 61))
sketch2.addConstraint(Sketcher.Constraint("Equal", 61, 63))
sketch2.addConstraint(Sketcher.Constraint("Equal", 63, 65))
sketch2.addConstraint(Sketcher.Constraint("Equal", 65, 67))
sketch2.addConstraint(Sketcher.Constraint("Equal", 67, 69))
sketch2.addConstraint(Sketcher.Constraint("PointOnObject", 19, 1, -1))
sketch2.addConstraint(Sketcher.Constraint("PointOnObject", 35, 2, -1))
sketch2.addConstraint(Sketcher.Constraint("PointOnObject", 37, 1, -2))
sketch2.addConstraint(Sketcher.Constraint("PointOnObject", 53, 2, -2))
sketch2.addConstraint(Sketcher.Constraint("Perpendicular", 8, 12))
sketch2.addConstraint(Sketcher.Constraint("Parallel", 12, 26))
sketch2.addConstraint(Sketcher.Constraint("Perpendicular", 26, 30))
sketch2.addConstraint(Sketcher.Constraint("Parallel", 30, 44))
sketch2.addConstraint(Sketcher.Constraint("Perpendicular", 44, 48))
sketch2.addConstraint(Sketcher.Constraint("Parallel", 48, 62))
sketch2.addConstraint(Sketcher.Constraint("Perpendicular", 62, 66))
sketch2.addConstraint(Sketcher.Constraint("Horizontal", 25, 3, 31, 3))
sketch2.addConstraint(Sketcher.Constraint("Horizontal", 23, 3, 33, 3))
sketch2.addConstraint(Sketcher.Constraint("Horizontal", 15, 3, 41, 3))
sketch2.addConstraint(Sketcher.Constraint("Horizontal", 11, 3, 45, 3))
sketch2.addConstraint(Sketcher.Constraint("Horizontal", 9, 3, 47, 3))
sketch2.addConstraint(Sketcher.Constraint("Horizontal", 7, 3, 49, 3))
sketch2.addConstraint(Sketcher.Constraint("Horizontal", 1, 3, 55, 3))
sketch2.addConstraint(Sketcher.Constraint("Horizontal", 61, 3, 67, 3))
sketch2.addConstraint(Sketcher.Constraint("Horizontal", 59, 3, 69, 3))
sketch2.addConstraint(Sketcher.Constraint("Horizontal", 26, 2, 29, 2))
sketch2.addConstraint(Sketcher.Constraint("Horizontal", 17, 2, 38, 2))
sketch2.addConstraint(Sketcher.Constraint("Horizontal", 3, 2, 52, 2))
sketch2.addConstraint(Sketcher.Constraint("Vertical", 7, 3, 13, 3))
sketch2.addConstraint(Sketcher.Constraint("Vertical", 5, 3, 15, 3))
sketch2.addConstraint(Sketcher.Constraint("Vertical", 1, 3, 19, 3))
sketch2.addConstraint(Sketcher.Constraint("Vertical", 41, 3, 51, 3))
sketch2.addConstraint(Sketcher.Constraint("Vertical", 33, 3, 59, 3))
sketch2.addConstraint(Sketcher.Constraint("Vertical", 29, 3, 63, 3))
sketch2.addConstraint(Sketcher.Constraint("Vertical", 27, 3, 65, 3))
sketch2.addConstraint(Sketcher.Constraint("Vertical", 35, 2, 56, 2))
sketch2.addConstraint(Sketcher.Constraint("Vertical", 21, 2, 70, 2))
sketch2.addConstraint(Sketcher.Constraint("Equal", 22, 34))
sketch2.addConstraint(Sketcher.Constraint("Equal", 20, 36))
sketch2.addConstraint(Sketcher.Constraint("Equal", 17, 39))
sketch2.addConstraint(Sketcher.Constraint("Equal", 14, 42))
sketch2.addConstraint(Sketcher.Constraint("Equal", 56, 2))
sketch2.addConstraint(Sketcher.Constraint("Equal", 70, 4))
sketch2.addConstraint(Sketcher.Constraint("Equal", 64, 10))
sketch2.addConstraint(Sketcher.Constraint("Equal", 4, 16))
sketch2.addConstraint(Sketcher.Constraint("Equal", 2, 18))
sketch2.addConstraint(Sketcher.Constraint("Equal", 53, 21))
sketch2.addConstraint(Sketcher.Constraint("Equal", 50, 24))
sketch2.addConstraint(Sketcher.Constraint("Equal", 35, 57))
sketch2.addConstraint(Sketcher.Constraint("Equal", 32, 60))
sketch2.addConstraint(Sketcher.Constraint("Equal", 12, 26))
sketch2.addConstraint(Sketcher.Constraint("Radius", 1, 1.0))
sketch2.addConstraint(Sketcher.Constraint("Radius", 5, 0.5))
sketch2.addConstraint(Sketcher.Constraint("DistanceX", 0, 1, 0, 2, 5.8))
sketch2.addConstraint(Sketcher.Constraint("DistanceX", 3, 2, 3, 1, 1.8))
sketch2.addConstraint(Sketcher.Constraint("DistanceX", -1, 1, 1, 3, 19.0))
sketch2.addConstraint(Sketcher.Constraint("DistanceX", 22, 1, 22, 2, 1.75))
sketch2.addConstraint(Sketcher.Constraint("DistanceX", -1, 1, 9, 3, 14.4))
sketch2.addConstraint(Sketcher.Constraint("Distance", 8, 3.12132))
pad2 = body.newObject("PartDesign::Pad", "Pad001")
pad2.Profile = sketch2
pad2.Length = 340
pad2.Reversed = True

doc.recompute()
